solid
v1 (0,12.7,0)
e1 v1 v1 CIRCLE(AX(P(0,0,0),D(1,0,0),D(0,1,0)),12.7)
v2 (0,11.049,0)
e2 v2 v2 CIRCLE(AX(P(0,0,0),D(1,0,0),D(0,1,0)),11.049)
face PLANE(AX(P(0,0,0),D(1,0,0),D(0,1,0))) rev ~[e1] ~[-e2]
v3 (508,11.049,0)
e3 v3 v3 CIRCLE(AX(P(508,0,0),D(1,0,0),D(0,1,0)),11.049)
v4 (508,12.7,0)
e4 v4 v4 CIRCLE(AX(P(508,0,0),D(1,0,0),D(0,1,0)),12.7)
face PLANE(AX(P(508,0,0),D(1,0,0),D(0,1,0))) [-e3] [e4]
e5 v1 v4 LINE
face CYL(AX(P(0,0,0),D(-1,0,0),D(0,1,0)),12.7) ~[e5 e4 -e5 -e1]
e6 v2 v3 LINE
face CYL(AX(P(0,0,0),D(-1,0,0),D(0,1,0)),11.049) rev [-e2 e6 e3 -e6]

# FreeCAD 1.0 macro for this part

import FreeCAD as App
import Part
import Sketcher

V = App.Vector
Q = App.Units.Quantity

doc = App.newDocument("Part")
params = doc.addObject("Spreadsheet::Sheet", "Params")
for row, (alias, value) in enumerate([
    ("sketch1_diameter", "1 in"),
    ("sketch1_diameter2", "0.87 in"),
    ("pad1_length", "20 in"),
], start=1):
    params.set(f"A{row}", alias)
    params.set(f"B{row}", "=" + value)
    params.setAlias(f"B{row}", alias)

body = doc.addObject("PartDesign::Body", "Body")

# Sketch on YZ plane
sketch1 = body.newObject("Sketcher::SketchObject", "Sketch")
sketch1.AttachmentSupport = (doc.getObject("YZ_Plane"), [""])
sketch1.MapMode = "FlatFace"
sketch1.addGeometry([
    Part.Circle(V(0, 0, 0), V(0, 0, 1), 13),
    Part.Circle(V(0, 0, 0), V(0, 0, 1), 11),
], False)
sketch1.addConstraint([
    Sketcher.Constraint("Coincident", 0, 3, -1, 1),
    Sketcher.Constraint("Coincident", 1, 3, -1, 1),
    Sketcher.Constraint("Diameter", 0, Q("1 in")),
    Sketcher.Constraint("Diameter", 1, Q("0.87 in")),
])
sketch1.setExpression("Constraints[2]", "Params.sketch1_diameter")
sketch1.setExpression("Constraints[3]", "Params.sketch1_diameter2")
pad1 = body.newObject("PartDesign::Pad", "Pad")
pad1.Profile = sketch1
pad1.setExpression("Length", "Params.pad1_length")

doc.recompute()
